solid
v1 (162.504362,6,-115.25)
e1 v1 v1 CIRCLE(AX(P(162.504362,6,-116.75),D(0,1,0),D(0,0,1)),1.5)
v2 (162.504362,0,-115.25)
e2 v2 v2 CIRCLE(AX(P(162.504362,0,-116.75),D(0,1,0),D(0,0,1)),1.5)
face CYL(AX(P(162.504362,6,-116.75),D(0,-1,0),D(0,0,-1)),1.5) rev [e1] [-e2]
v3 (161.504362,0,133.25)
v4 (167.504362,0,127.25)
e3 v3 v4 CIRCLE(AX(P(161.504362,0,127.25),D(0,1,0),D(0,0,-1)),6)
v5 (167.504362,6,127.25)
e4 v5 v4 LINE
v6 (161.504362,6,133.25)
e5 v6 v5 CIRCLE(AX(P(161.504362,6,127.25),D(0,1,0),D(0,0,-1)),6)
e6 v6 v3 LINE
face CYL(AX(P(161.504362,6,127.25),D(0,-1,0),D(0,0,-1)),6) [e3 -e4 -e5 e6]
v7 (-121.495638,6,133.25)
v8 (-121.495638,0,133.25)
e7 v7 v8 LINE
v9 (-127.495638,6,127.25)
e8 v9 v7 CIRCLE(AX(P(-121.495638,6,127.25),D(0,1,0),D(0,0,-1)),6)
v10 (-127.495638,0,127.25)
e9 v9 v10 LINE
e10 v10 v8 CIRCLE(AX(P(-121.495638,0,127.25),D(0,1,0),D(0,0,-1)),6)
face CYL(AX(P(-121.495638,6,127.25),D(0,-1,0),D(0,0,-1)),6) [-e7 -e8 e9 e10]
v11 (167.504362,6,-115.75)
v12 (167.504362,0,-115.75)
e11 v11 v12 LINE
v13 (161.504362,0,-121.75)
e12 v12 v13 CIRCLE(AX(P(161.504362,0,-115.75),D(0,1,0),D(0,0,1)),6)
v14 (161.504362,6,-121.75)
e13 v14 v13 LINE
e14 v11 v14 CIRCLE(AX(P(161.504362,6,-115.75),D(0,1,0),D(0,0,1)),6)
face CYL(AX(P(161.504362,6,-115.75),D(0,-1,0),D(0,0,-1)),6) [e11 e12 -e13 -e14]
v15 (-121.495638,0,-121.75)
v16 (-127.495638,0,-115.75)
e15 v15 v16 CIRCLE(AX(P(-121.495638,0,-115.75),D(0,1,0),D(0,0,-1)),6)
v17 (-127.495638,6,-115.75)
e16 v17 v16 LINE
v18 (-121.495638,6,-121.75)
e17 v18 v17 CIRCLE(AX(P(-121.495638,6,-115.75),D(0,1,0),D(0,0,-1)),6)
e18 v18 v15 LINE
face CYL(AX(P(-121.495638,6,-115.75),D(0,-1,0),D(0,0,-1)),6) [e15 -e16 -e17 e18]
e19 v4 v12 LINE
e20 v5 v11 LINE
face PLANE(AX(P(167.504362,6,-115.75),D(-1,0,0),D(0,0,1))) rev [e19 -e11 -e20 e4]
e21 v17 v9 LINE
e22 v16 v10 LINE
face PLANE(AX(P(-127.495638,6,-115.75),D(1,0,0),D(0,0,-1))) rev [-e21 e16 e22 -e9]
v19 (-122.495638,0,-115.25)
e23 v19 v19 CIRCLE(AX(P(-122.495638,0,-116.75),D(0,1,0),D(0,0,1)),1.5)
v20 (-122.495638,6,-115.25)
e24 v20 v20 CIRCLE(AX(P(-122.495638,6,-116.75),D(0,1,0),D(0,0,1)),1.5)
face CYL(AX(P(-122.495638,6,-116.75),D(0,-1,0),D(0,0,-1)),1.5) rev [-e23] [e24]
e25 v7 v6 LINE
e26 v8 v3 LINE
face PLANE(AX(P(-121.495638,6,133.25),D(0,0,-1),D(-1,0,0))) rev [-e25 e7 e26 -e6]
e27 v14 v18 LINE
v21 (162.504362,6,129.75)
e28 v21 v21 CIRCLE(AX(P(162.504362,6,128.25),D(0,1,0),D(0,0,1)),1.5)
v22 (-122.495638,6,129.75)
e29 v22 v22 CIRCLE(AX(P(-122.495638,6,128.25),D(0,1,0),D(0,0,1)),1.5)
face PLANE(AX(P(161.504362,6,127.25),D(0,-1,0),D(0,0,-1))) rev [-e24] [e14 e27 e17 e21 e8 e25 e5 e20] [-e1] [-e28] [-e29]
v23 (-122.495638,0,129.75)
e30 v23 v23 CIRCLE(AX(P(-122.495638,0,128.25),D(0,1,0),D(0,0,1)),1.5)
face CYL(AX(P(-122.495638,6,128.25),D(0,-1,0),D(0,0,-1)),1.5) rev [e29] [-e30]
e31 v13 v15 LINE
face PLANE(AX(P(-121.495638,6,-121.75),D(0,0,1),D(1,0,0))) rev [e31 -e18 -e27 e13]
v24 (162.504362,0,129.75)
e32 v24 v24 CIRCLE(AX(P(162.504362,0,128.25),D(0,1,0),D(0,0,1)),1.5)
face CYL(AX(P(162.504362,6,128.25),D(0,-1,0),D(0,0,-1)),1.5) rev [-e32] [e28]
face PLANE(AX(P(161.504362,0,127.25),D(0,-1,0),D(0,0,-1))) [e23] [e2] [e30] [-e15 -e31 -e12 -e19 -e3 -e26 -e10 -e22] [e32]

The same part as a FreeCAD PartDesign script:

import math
import FreeCAD as App
import Part
import Sketcher
from FreeCAD import Vector
Q = App.Units.Quantity

doc = App.newDocument("Part")
body = doc.addObject("PartDesign::Body", "Body")

sketch1 = body.newObject("Sketcher::SketchObject", "Sketch")
sketch1.AttachmentSupport = (doc.getObject("XZ_Plane"), [""])
sketch1.MapMode = "FlatFace"
sketch1.addGeometry(Part.LineSegment(Vector(161.5, -121.8, 0), Vector(-121.5, -121.8, 0)), False)
sketch1.addGeometry(Part.ArcOfCircle(Part.Circle(Vector(-121.5, -115.8, 0), Vector(0, 0, 1), 6), math.radians(180), math.radians(270)), False)
sketch1.addGeometry(Part.LineSegment(Vector(-127.5, -115.8, 0), Vector(-127.5, 127.2, 0)), False)
sketch1.addGeometry(Part.ArcOfCircle(Part.Circle(Vector(-121.5, 127.2, 0), Vector(0, 0, 1), 6), math.radians(90), math.radians(180)), False)
sketch1.addGeometry(Part.LineSegment(Vector(-121.5, 133.2, 0), Vector(161.5, 133.2, 0)), False)
sketch1.addGeometry(Part.ArcOfCircle(Part.Circle(Vector(161.5, 127.2, 0), Vector(0, 0, 1), 6), math.radians(0), math.radians(90)), False)
sketch1.addGeometry(Part.LineSegment(Vector(167.5, 127.2, 0), Vector(167.5, -115.8, 0)), False)
sketch1.addGeometry(Part.ArcOfCircle(Part.Circle(Vector(161.5, -115.8, 0), Vector(0, 0, 1), 6), math.radians(-90), math.radians(0)), False)
sketch1.addGeometry(Part.Circle(Vector(162.5, 128.2, 0), Vector(0, 0, 1), 1.5), False)
sketch1.addGeometry(Part.Circle(Vector(-122.5, 128.2, 0), Vector(0, 0, 1), 1.5), False)
sketch1.addGeometry(Part.Circle(Vector(162.5, -116.8, 0), Vector(0, 0, 1), 1.5), False)
sketch1.addGeometry(Part.Circle(Vector(-122.5, -116.8, 0), Vector(0, 0, 1), 1.5), False)
sketch1.addConstraint(Sketcher.Constraint("Tangent", 0, 2, 1, 2))
sketch1.addConstraint(Sketcher.Constraint("Tangent", 1, 1, 2, 1))
sketch1.addConstraint(Sketcher.Constraint("Tangent", 2, 2, 3, 2))
sketch1.addConstraint(Sketcher.Constraint("Tangent", 3, 1, 4, 1))
sketch1.addConstraint(Sketcher.Constraint("Tangent", 4, 2, 5, 2))
sketch1.addConstraint(Sketcher.Constraint("Tangent", 5, 1, 6, 1))
sketch1.addConstraint(Sketcher.Constraint("Tangent", 6, 2, 7, 2))
sketch1.addConstraint(Sketcher.Constraint("Tangent", 7, 1, 0, 1))
sketch1.addConstraint(Sketcher.Constraint("Horizontal", 0))
sketch1.addConstraint(Sketcher.Constraint("Vertical", 2))
sketch1.addConstraint(Sketcher.Constraint("Horizontal", 4))
sketch1.addConstraint(Sketcher.Constraint("Vertical", 6))
sketch1.addConstraint(Sketcher.Constraint("Equal", 1, 3))
sketch1.addConstraint(Sketcher.Constraint("Equal", 3, 5))
sketch1.addConstraint(Sketcher.Constraint("Equal", 5, 7))
sketch1.addConstraint(Sketcher.Constraint("Equal", 8, 9))
sketch1.addConstraint(Sketcher.Constraint("Equal", 9, 10))
sketch1.addConstraint(Sketcher.Constraint("Equal", 10, 11))
sketch1.addConstraint(Sketcher.Constraint("Horizontal", 8, 3, 9, 3))
sketch1.addConstraint(Sketcher.Constraint("Horizontal", 10, 3, 11, 3))
sketch1.addConstraint(Sketcher.Constraint("Vertical", 8, 3, 10, 3))
sketch1.addConstraint(Sketcher.Constraint("Vertical", 9, 3, 11, 3))
sketch1.addConstraint(Sketcher.Constraint("Diameter", 8, Q("3 mm")))
sketch1.addConstraint(Sketcher.Constraint("Radius", 1, Q("6 mm")))
sketch1.addConstraint(Sketcher.Constraint("DistanceX", 0, 2, 0, 1, Q("283 mm")))
sketch1.addConstraint(Sketcher.Constraint("DistanceY", 2, 1, 2, 2, Q("243 mm")))
sketch1.addConstraint(Sketcher.Constraint("DistanceX", 5, 3, 8, 3, Q("1 mm")))
sketch1.addConstraint(Sketcher.Constraint("DistanceY", 5, 3, 8, 3, Q("1 mm")))
sketch1.addConstraint(Sketcher.Constraint("DistanceX", 9, 3, 3, 3, Q("1 mm")))
sketch1.addConstraint(Sketcher.Constraint("DistanceY", 10, 3, 7, 3, Q("1 mm")))
sketch1.addConstraint(Sketcher.Constraint("DistanceY", 1, 3, -1, 1, Q("115.75 mm")))
sketch1.addConstraint(Sketcher.Constraint("DistanceX", 1, 3, -1, 1, Q("121.495638 mm")))
pad1 = body.newObject("PartDesign::Pad", "Pad")
pad1.Profile = sketch1
pad1.Length = 6
pad1.Reversed = True

doc.recompute()
